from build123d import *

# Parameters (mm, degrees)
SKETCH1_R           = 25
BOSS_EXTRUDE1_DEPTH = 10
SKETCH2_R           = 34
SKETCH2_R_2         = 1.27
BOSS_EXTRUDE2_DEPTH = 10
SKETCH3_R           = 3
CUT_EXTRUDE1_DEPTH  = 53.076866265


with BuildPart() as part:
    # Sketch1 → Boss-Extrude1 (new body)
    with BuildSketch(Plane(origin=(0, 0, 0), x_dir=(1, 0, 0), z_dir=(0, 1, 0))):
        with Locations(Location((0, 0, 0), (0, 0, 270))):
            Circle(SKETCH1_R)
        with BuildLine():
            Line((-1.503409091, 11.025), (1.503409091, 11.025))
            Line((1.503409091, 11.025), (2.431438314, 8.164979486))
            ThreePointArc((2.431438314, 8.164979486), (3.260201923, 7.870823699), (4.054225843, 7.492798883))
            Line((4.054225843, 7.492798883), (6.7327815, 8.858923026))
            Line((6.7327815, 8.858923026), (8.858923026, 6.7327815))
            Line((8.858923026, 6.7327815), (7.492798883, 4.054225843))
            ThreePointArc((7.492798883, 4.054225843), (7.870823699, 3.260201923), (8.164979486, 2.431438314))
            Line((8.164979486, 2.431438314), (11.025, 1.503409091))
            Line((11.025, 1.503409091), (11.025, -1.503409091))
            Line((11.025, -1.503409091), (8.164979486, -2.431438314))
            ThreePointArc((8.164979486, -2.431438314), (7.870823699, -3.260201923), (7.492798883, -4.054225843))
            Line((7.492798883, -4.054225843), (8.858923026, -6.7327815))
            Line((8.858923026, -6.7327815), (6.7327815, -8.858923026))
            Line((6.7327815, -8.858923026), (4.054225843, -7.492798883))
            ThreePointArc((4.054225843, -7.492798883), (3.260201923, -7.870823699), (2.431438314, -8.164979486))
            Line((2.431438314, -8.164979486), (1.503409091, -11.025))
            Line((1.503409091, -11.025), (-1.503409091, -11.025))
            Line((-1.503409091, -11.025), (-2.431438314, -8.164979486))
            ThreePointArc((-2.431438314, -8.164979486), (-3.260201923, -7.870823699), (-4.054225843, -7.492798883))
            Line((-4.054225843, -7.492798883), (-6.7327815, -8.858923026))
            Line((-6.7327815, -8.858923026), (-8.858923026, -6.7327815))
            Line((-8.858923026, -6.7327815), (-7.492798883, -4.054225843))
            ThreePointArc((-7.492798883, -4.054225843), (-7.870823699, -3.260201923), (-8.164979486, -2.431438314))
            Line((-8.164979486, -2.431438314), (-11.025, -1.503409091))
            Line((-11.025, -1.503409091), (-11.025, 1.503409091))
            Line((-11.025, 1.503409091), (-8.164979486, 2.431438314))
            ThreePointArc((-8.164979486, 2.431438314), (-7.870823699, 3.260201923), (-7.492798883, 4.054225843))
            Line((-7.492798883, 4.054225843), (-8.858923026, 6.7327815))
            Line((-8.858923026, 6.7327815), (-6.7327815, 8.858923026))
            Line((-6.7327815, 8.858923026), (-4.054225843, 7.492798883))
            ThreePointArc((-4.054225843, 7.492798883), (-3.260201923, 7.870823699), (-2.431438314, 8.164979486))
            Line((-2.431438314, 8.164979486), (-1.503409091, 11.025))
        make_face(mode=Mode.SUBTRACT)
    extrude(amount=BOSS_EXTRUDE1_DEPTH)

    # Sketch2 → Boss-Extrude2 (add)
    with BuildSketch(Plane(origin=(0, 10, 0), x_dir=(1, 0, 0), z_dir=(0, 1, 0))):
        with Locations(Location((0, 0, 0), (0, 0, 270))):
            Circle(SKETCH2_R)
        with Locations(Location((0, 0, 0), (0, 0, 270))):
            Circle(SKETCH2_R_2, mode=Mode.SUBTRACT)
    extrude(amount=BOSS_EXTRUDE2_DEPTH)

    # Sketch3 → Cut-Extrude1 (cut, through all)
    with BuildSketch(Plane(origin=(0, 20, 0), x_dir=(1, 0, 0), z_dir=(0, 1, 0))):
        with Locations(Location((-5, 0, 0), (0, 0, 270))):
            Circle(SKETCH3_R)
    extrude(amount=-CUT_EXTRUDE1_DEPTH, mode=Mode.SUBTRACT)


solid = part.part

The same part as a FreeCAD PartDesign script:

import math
import FreeCAD as App
import Part
import Sketcher
from FreeCAD import Vector
Q = App.Units.Quantity

doc = App.newDocument("Part")
body = doc.addObject("PartDesign::Body", "Body")

# Sketch on XZ plane
sketch1 = body.newObject("Sketcher::SketchObject", "Sketch")
sketch1.AttachmentSupport = (doc.getObject("XZ_Plane"), [""])
sketch1.MapMode = "FlatFace"
sketch1.addGeometry([
    Part.Circle(Vector(0, 0, 0), Vector(0, 0, 1), 25),  # 0
    Part.LineSegment(Vector(-2.4, -8.2, 0), Vector(-1.5, -11, 0)),  # 1
    Part.LineSegment(Vector(-1.5, -11, 0), Vector(1.5, -11, 0)),  # 2
    Part.LineSegment(Vector(1.5, -11, 0), Vector(2.4, -8.2, 0)),  # 3
    Part.ArcOfCircle(Part.Circle(Vector(0, 0, 0), Vector(0, 0, 1), 8.5), math.radians(-73.42), math.radians(-61.58)),  # 4
    Part.LineSegment(Vector(4.1, -7.5, 0), Vector(6.7, -8.9, 0)),  # 5
    Part.LineSegment(Vector(6.7, -8.9, 0), Vector(8.9, -6.7, 0)),  # 6
    Part.LineSegment(Vector(8.9, -6.7, 0), Vector(7.5, -4.1, 0)),  # 7
    Part.ArcOfCircle(Part.Circle(Vector(0, 0, 0), Vector(0, 0, 1), 8.5), math.radians(-28.42), math.radians(-16.58)),  # 8
    Part.LineSegment(Vector(8.2, -2.4, 0), Vector(11, -1.5, 0)),  # 9
    Part.LineSegment(Vector(11, -1.5, 0), Vector(11, 1.5, 0)),  # 10
    Part.LineSegment(Vector(11, 1.5, 0), Vector(8.2, 2.4, 0)),  # 11
    Part.ArcOfCircle(Part.Circle(Vector(0, 0, 0), Vector(0, 0, 1), 8.5), math.radians(16.58), math.radians(28.42)),  # 12
    Part.LineSegment(Vector(7.5, 4.1, 0), Vector(8.9, 6.7, 0)),  # 13
    Part.LineSegment(Vector(8.9, 6.7, 0), Vector(6.7, 8.9, 0)),  # 14
    Part.LineSegment(Vector(6.7, 8.9, 0), Vector(4.1, 7.5, 0)),  # 15
    Part.ArcOfCircle(Part.Circle(Vector(0, 0, 0), Vector(0, 0, 1), 8.5), math.radians(61.58), math.radians(73.42)),  # 16
    Part.LineSegment(Vector(2.4, 8.2, 0), Vector(1.5, 11, 0)),  # 17
    Part.LineSegment(Vector(1.5, 11, 0), Vector(-1.5, 11, 0)),  # 18
    Part.LineSegment(Vector(-1.5, 11, 0), Vector(-2.4, 8.2, 0)),  # 19
    Part.ArcOfCircle(Part.Circle(Vector(0, 0, 0), Vector(0, 0, 1), 8.5), math.radians(106.58), math.radians(118.42)),  # 20
    Part.LineSegment(Vector(-4.1, 7.5, 0), Vector(-6.7, 8.9, 0)),  # 21
    Part.LineSegment(Vector(-6.7, 8.9, 0), Vector(-8.9, 6.7, 0)),  # 22
    Part.LineSegment(Vector(-8.9, 6.7, 0), Vector(-7.5, 4.1, 0)),  # 23
    Part.ArcOfCircle(Part.Circle(Vector(0, 0, 0), Vector(0, 0, 1), 8.5), math.radians(151.58), math.radians(163.42)),  # 24
    Part.LineSegment(Vector(-8.2, 2.4, 0), Vector(-11, 1.5, 0)),  # 25
    Part.LineSegment(Vector(-11, 1.5, 0), Vector(-11, -1.5, 0)),  # 26
    Part.LineSegment(Vector(-11, -1.5, 0), Vector(-8.2, -2.4, 0)),  # 27
    Part.ArcOfCircle(Part.Circle(Vector(0, 0, 0), Vector(0, 0, 1), 8.5), math.radians(-163.42), math.radians(-151.58)),  # 28
    Part.LineSegment(Vector(-7.5, -4.1, 0), Vector(-8.9, -6.7, 0)),  # 29
    Part.LineSegment(Vector(-8.9, -6.7, 0), Vector(-6.7, -8.9, 0)),  # 30
    Part.LineSegment(Vector(-6.7, -8.9, 0), Vector(-4.1, -7.5, 0)),  # 31
    Part.ArcOfCircle(Part.Circle(Vector(0, 0, 0), Vector(0, 0, 1), 8.5), math.radians(-118.42), math.radians(-106.58)),  # 32
], False)
sketch1.addConstraint([
    Sketcher.Constraint("Coincident", 1, 2, 2, 1),
    Sketcher.Constraint("Coincident", 2, 2, 3, 1),
    Sketcher.Constraint("Coincident", 3, 2, 4, 1),
    Sketcher.Constraint("Coincident", 4, 2, 5, 1),
    Sketcher.Constraint("Coincident", 5, 2, 6, 1),
    Sketcher.Constraint("Coincident", 6, 2, 7, 1),
    Sketcher.Constraint("Coincident", 7, 2, 8, 1),
    Sketcher.Constraint("Coincident", 8, 2, 9, 1),
    Sketcher.Constraint("Coincident", 9, 2, 10, 1),
    Sketcher.Constraint("Coincident", 10, 2, 11, 1),
    Sketcher.Constraint("Coincident", 11, 2, 12, 1),
    Sketcher.Constraint("Coincident", 12, 2, 13, 1),
    Sketcher.Constraint("Coincident", 13, 2, 14, 1),
    Sketcher.Constraint("Coincident", 14, 2, 15, 1),
    Sketcher.Constraint("Coincident", 15, 2, 16, 1),
    Sketcher.Constraint("Coincident", 16, 2, 17, 1),
    Sketcher.Constraint("Coincident", 17, 2, 18, 1),
    Sketcher.Constraint("Coincident", 18, 2, 19, 1),
    Sketcher.Constraint("Coincident", 19, 2, 20, 1),
    Sketcher.Constraint("Coincident", 20, 2, 21, 1),
    Sketcher.Constraint("Coincident", 21, 2, 22, 1),
    Sketcher.Constraint("Coincident", 22, 2, 23, 1),
    Sketcher.Constraint("Coincident", 23, 2, 24, 1),
    Sketcher.Constraint("Coincident", 24, 2, 25, 1),
    Sketcher.Constraint("Coincident", 25, 2, 26, 1),
    Sketcher.Constraint("Coincident", 26, 2, 27, 1),
    Sketcher.Constraint("Coincident", 27, 2, 28, 1),
    Sketcher.Constraint("Coincident", 28, 2, 29, 1),
    Sketcher.Constraint("Coincident", 29, 2, 30, 1),
    Sketcher.Constraint("Coincident", 30, 2, 31, 1),
    Sketcher.Constraint("Coincident", 31, 2, 32, 1),
    Sketcher.Constraint("Coincident", 32, 2, 1, 1),
    Sketcher.Constraint("Horizontal", 2),
    Sketcher.Constraint("Vertical", 10),
    Sketcher.Constraint("Horizontal", 18),
    Sketcher.Constraint("Vertical", 26),
    Sketcher.Constraint("Coincident", 0, 3, -1, 1),
    Sketcher.Constraint("Coincident", 4, 3, -1, 1),
    Sketcher.Constraint("Coincident", 8, 3, -1, 1),
    Sketcher.Constraint("Coincident", 12, 3, -1, 1),
    Sketcher.Constraint("Coincident", 16, 3, -1, 1),
    Sketcher.Constraint("Coincident", 20, 3, -1, 1),
    Sketcher.Constraint("Coincident", 24, 3, -1, 1),
    Sketcher.Constraint("Coincident", 28, 3, -1, 1),
    Sketcher.Constraint("Coincident", 32, 3, -1, 1),
    Sketcher.Constraint("Equal", 4, 8),
    Sketcher.Constraint("Equal", 8, 12),
    Sketcher.Constraint("Equal", 12, 16),
    Sketcher.Constraint("Equal", 16, 20),
    Sketcher.Constraint("Equal", 20, 24),
    Sketcher.Constraint("Equal", 24, 28),
    Sketcher.Constraint("Equal", 28, 32),
    Sketcher.Constraint("Symmetric", 1, 2, 17, 2, -1, 1),
    Sketcher.Constraint("Symmetric", 5, 2, 21, 2, -1, 1),
    Sketcher.Constraint("Symmetric", 6, 2, 22, 2, -1, 1),
    Sketcher.Constraint("Symmetric", 9, 2, 25, 2, -1, 1),
    Sketcher.Constraint("Symmetric", 13, 2, 29, 2, -1, 1),
    Sketcher.Constraint("Symmetric", 14, 2, 30, 2, -1, 1),
    Sketcher.Constraint("Symmetric", 14, 2, 21, 2, -2),
    Sketcher.Constraint("Symmetric", 13, 2, 22, 2, -2),
    Sketcher.Constraint("Perpendicular", 1, 9),
    Sketcher.Constraint("Perpendicular", 3, 11),
    Sketcher.Constraint("Perpendicular", 5, 13),
    Sketcher.Constraint("Perpendicular", 6, 14),
    Sketcher.Constraint("Perpendicular", 7, 15),
    Sketcher.Constraint("Perpendicular", 9, 17),
    Sketcher.Constraint("Perpendicular", 11, 19),
    Sketcher.Constraint("Perpendicular", 13, 21),
    Sketcher.Constraint("Perpendicular", 15, 23),
    Sketcher.Constraint("Perpendicular", 17, 25),
    Sketcher.Constraint("Perpendicular", 19, 27),
    Sketcher.Constraint("Perpendicular", 21, 29),
    Sketcher.Constraint("Perpendicular", 23, 31),
    Sketcher.Constraint("Horizontal", 16, 2, 19, 2),
    Sketcher.Constraint("Horizontal", 15, 2, 20, 2),
    Sketcher.Constraint("Horizontal", 11, 2, 24, 2),
    Sketcher.Constraint("Horizontal", 10, 2, 25, 2),
    Sketcher.Constraint("Horizontal", 9, 2, 26, 2),
    Sketcher.Constraint("Horizontal", 3, 2, 32, 2),
    Sketcher.Constraint("Equal", 18, 10),
    Sketcher.Constraint("Equal", 3, 5),
    Sketcher.Constraint("Equal", 5, 6),
    Sketcher.Constraint("Equal", 6, 7),
    Sketcher.Constraint("Equal", 7, 9),
    Sketcher.Constraint("Diameter", 0, Q("50 mm")),
    Sketcher.Constraint("Radius", 4, Q("8.519318 mm")),
    Sketcher.Constraint("DistanceY", 1, 2, -1, 1, Q("11.025 mm")),
    Sketcher.Constraint("DistanceX", 2, 1, 2, 2, Q("3.006818 mm")),
    Sketcher.Constraint("DistanceY", 4, 2, -1, 1, Q("7.492799 mm")),
    Sketcher.Constraint("Distance", 1, Q("3.006818 mm")),
])
pad1 = body.newObject("PartDesign::Pad", "Pad")
pad1.Profile = sketch1
pad1.Length = 10
pad1.Reversed = True

# Sketch on XZ plane
sketch2 = body.newObject("Sketcher::SketchObject", "Sketch001")
sketch2.AttachmentSupport = (doc.getObject("XZ_Plane"), [""])
sketch2.MapMode = "FlatFace"
sketch2.AttachmentOffset = App.Placement(Vector(0, 0, -10), App.Rotation())
sketch2.addGeometry([
    Part.Circle(Vector(0, 0, 0), Vector(0, 0, 1), 34),
    Part.Circle(Vector(0, 0, 0), Vector(0, 0, 1), 1.3),
], False)
sketch2.addConstraint([
    Sketcher.Constraint("Coincident", 0, 3, -1, 1),
    Sketcher.Constraint("Coincident", 1, 3, -1, 1),
    Sketcher.Constraint("Diameter", 0, Q("68 mm")),
    Sketcher.Constraint("Diameter", 1, Q("2.54 mm")),
])
pad2 = body.newObject("PartDesign::Pad", "Pad001")
pad2.Profile = sketch2
pad2.Length = 10
pad2.Reversed = True

# Sketch on XZ plane
sketch3 = body.newObject("Sketcher::SketchObject", "Sketch002")
sketch3.AttachmentSupport = (doc.getObject("XZ_Plane"), [""])
sketch3.MapMode = "FlatFace"
sketch3.AttachmentOffset = App.Placement(Vector(0, 0, -20), App.Rotation())
sketch3.addGeometry(Part.Circle(Vector(-5, 0, 0), Vector(0, 0, 1), 3), False)
sketch3.addConstraint([
    Sketcher.Constraint("PointOnObject", 0, 3, -1),
    Sketcher.Constraint("Diameter", 0, Q("6 mm")),
    Sketcher.Constraint("DistanceX", 0, 3, -1, 1, Q("5 mm")),
])
pocket1 = body.newObject("PartDesign::Pocket", "Pocket")
pocket1.Profile = sketch3
pocket1.Type = "ThroughAll"
pocket1.Reversed = True

doc.recompute()
